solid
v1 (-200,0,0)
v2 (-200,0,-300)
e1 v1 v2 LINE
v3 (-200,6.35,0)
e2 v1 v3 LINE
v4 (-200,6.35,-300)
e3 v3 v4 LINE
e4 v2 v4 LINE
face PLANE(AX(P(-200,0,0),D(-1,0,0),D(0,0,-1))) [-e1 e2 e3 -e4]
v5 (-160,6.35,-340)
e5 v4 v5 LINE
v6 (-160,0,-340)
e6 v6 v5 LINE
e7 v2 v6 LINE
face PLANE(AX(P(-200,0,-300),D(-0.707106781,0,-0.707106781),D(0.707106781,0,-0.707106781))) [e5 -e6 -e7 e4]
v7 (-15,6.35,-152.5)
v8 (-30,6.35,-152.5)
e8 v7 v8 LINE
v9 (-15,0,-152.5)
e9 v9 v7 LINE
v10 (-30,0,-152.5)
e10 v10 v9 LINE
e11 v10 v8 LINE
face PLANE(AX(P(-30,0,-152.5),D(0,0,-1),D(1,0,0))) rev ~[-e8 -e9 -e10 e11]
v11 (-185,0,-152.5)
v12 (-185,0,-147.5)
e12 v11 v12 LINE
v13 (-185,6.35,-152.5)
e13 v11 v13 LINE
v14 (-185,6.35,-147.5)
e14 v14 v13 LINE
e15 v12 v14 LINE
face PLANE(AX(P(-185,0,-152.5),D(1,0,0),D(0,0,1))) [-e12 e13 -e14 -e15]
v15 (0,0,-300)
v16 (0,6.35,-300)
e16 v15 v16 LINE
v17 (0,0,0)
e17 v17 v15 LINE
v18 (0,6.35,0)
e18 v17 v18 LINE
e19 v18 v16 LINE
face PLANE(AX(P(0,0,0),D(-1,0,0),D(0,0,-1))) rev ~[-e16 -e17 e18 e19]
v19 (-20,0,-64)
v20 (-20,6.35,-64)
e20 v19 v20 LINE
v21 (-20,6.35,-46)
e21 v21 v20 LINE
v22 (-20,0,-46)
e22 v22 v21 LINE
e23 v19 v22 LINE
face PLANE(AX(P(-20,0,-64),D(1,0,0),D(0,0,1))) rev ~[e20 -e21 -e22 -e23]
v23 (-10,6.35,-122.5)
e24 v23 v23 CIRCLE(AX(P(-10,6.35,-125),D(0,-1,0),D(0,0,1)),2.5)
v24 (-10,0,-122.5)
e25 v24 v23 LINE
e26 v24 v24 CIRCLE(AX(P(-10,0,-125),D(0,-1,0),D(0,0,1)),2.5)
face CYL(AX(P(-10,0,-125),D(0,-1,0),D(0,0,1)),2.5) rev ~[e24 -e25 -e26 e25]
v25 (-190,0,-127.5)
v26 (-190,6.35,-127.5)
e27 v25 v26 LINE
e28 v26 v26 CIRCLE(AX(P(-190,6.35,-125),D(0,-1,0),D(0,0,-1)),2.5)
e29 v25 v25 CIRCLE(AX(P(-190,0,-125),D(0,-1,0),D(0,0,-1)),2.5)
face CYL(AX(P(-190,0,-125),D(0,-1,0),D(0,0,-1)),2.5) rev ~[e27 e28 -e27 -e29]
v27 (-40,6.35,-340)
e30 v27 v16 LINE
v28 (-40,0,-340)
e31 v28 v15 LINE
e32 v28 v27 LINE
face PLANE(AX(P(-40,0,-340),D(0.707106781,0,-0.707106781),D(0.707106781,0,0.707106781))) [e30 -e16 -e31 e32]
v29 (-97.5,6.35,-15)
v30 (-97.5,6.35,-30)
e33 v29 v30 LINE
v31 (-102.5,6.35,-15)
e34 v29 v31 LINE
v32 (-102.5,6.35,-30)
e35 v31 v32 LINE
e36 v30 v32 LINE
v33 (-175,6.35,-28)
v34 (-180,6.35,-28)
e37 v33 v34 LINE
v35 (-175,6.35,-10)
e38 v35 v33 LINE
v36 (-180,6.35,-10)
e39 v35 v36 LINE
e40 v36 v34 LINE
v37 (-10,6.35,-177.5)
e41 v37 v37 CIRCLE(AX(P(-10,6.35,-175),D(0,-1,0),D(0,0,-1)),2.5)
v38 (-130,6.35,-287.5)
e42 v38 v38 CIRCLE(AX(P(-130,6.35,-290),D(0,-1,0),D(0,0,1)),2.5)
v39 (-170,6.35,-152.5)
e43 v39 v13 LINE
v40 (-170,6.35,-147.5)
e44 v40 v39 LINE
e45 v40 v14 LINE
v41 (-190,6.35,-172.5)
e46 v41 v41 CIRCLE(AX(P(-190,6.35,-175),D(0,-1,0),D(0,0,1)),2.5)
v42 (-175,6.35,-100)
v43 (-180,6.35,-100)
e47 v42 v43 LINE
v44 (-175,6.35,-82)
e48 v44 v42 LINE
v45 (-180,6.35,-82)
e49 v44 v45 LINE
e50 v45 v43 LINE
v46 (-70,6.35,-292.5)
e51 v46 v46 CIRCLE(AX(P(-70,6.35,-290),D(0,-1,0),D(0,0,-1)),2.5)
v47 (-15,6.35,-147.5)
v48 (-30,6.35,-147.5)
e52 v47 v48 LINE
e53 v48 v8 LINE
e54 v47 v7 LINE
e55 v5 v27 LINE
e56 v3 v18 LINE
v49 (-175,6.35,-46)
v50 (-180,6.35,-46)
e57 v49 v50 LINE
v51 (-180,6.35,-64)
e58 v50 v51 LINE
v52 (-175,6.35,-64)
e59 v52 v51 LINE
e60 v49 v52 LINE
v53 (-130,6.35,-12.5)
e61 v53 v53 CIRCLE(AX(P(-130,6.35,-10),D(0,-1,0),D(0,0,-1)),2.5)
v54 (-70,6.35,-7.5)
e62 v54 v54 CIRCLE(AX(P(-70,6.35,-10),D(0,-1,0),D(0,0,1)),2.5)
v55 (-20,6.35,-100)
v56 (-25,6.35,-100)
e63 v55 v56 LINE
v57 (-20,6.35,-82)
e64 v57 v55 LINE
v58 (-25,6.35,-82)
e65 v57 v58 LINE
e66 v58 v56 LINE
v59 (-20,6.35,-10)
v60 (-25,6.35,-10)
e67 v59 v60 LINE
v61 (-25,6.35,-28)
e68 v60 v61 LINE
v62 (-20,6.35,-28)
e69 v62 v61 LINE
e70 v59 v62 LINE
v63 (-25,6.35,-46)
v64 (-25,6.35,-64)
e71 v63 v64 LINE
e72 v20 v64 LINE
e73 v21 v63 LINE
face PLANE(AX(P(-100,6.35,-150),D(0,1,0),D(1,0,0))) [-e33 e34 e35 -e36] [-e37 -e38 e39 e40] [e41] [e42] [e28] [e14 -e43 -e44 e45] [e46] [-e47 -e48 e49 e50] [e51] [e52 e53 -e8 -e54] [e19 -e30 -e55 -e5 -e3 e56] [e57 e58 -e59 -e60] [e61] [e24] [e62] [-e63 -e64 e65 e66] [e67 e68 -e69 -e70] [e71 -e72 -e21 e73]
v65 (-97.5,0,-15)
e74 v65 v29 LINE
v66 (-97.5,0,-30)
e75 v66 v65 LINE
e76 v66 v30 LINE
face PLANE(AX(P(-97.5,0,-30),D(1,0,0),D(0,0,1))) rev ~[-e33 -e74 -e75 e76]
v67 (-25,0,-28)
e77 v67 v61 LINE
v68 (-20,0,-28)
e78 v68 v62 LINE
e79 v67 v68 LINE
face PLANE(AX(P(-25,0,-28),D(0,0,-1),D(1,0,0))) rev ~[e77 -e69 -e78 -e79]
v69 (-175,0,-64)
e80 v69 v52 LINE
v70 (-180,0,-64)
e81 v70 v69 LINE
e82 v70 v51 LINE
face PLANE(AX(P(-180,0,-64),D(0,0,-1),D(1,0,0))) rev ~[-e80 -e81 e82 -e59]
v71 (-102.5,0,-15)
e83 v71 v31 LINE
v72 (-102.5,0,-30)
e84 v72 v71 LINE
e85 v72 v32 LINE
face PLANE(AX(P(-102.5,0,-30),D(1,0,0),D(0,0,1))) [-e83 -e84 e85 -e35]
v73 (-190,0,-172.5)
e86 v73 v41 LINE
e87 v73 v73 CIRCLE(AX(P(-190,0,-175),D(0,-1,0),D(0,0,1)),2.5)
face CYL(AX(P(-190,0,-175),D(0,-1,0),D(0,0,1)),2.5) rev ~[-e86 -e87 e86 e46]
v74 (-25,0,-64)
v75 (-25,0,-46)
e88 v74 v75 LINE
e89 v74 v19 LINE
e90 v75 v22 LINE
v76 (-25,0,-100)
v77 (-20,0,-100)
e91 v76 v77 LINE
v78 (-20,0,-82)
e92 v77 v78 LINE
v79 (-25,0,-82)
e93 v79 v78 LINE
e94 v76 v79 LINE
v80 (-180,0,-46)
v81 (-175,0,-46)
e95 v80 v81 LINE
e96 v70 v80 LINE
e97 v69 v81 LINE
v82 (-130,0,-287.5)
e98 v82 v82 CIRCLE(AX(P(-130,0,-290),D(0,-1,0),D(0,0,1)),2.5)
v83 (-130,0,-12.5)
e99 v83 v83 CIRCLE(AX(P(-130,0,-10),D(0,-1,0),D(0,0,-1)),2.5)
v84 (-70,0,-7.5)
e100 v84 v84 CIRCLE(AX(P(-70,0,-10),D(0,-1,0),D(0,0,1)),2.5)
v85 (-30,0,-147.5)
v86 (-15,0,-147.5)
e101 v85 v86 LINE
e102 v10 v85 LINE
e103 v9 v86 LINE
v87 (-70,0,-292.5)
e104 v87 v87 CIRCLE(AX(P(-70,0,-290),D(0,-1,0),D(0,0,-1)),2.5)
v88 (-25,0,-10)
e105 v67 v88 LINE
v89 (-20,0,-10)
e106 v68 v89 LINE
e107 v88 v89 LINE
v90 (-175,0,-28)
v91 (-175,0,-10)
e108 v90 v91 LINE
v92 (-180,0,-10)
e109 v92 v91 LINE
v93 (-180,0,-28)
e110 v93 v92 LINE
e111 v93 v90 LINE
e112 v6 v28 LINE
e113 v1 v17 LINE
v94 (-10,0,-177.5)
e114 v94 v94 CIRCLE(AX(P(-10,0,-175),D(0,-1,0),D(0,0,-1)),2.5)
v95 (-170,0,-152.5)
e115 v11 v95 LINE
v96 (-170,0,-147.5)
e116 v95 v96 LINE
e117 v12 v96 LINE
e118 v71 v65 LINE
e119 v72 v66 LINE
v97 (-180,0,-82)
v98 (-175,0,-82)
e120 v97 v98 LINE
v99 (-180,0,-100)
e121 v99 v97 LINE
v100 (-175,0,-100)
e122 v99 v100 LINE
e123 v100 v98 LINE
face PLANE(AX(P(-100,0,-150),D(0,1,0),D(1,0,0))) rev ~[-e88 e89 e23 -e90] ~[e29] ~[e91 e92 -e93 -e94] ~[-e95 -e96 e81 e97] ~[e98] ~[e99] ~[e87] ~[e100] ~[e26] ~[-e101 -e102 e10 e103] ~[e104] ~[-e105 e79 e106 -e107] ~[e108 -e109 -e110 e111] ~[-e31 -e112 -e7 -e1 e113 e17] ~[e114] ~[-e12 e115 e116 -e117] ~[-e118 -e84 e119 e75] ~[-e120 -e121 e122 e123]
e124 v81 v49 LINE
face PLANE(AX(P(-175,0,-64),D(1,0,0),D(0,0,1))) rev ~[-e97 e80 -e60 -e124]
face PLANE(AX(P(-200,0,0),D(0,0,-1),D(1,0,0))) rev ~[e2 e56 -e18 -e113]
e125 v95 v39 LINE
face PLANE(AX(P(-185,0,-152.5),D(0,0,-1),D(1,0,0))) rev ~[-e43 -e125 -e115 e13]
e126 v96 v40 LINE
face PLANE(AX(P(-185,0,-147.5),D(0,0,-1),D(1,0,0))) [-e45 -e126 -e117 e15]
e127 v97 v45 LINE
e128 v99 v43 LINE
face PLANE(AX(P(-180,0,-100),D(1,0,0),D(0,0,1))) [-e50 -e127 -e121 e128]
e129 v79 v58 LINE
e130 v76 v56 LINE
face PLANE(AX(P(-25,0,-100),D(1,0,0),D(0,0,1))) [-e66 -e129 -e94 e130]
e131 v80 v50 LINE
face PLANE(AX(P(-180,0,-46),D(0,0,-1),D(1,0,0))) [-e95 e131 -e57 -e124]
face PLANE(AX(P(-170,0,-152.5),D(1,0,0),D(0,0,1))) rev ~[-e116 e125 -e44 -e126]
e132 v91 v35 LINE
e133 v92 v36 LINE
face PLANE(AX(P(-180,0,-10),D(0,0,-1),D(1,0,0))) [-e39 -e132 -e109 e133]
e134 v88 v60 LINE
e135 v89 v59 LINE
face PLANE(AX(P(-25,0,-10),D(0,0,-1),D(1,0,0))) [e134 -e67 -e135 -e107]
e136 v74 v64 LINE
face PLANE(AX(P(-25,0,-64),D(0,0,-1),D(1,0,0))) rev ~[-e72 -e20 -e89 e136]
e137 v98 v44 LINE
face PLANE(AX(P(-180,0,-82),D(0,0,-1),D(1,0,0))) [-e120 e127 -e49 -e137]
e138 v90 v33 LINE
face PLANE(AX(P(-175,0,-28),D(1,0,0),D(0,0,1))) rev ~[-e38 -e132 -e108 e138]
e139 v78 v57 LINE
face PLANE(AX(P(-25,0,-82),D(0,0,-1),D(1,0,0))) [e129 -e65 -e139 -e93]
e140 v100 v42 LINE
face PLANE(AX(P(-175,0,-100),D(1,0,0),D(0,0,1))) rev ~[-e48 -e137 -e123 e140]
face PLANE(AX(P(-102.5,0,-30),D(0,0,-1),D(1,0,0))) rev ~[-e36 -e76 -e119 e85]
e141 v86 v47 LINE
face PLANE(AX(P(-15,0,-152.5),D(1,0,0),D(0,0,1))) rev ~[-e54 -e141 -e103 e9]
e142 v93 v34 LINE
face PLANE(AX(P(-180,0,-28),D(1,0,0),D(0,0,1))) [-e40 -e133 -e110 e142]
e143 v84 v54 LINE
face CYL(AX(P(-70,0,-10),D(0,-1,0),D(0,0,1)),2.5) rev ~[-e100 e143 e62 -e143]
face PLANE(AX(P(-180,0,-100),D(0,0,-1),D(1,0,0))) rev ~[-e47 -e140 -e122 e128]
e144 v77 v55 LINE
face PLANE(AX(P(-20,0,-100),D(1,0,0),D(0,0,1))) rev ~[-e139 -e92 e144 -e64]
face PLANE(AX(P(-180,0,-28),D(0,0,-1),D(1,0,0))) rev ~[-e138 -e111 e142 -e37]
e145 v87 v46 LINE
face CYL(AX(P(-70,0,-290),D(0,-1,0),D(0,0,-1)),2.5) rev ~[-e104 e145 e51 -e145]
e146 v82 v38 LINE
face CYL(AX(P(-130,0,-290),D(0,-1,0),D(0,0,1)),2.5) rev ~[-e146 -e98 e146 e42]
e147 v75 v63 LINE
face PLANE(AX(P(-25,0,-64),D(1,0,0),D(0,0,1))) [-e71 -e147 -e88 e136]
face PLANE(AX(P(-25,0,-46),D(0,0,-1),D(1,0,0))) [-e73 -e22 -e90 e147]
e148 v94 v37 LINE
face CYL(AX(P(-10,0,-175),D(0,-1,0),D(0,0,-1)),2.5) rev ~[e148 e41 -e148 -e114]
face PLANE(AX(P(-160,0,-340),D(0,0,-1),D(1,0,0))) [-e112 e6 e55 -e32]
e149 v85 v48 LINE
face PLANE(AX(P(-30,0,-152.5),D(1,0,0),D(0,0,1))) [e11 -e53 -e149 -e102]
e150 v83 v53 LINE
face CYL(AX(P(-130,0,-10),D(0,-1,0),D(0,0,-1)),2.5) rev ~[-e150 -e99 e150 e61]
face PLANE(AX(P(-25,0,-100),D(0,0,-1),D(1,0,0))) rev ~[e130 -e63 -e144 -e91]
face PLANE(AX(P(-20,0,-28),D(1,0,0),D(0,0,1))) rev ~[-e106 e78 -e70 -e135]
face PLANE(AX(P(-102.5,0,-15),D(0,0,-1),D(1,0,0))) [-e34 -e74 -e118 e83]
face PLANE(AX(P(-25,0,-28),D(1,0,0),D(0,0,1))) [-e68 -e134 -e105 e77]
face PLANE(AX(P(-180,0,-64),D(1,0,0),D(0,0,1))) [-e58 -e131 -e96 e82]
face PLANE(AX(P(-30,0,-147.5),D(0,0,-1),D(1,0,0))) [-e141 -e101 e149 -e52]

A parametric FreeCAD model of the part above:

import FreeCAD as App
import Part
import Sketcher

V = App.Vector
Q = App.Units.Quantity

doc = App.newDocument("Part")
params = doc.addObject("Spreadsheet::Sheet", "Params")
for row, (alias, value) in enumerate([
    ("sketch1_width", "200 mm"),
    ("sketch1_width2", "120 mm"),
    ("sketch1_height", "300 mm"),
    ("pad1_length", "6.35 mm"),
    ("sketch2_diameter", "5 mm"),
    ("sketch2_width", "5 mm"),
    ("sketch2_width2", "15 mm"),
    ("pocket1_length", "10 mm"),
    ("sketch3_width", "5 mm"),
    ("sketch3_height", "18 mm"),
    ("pocket2_length", "10 mm"),
], start=1):
    params.set(f"A{row}", alias)
    params.set(f"B{row}", "=" + value)
    params.setAlias(f"B{row}", alias)

body = doc.addObject("PartDesign::Body", "Body")

sketch1 = doc.addObject("Sketcher::SketchObject", "Sketch")
body.addObject(sketch1)
sketch1.AttachmentSupport = (doc.XZ_Plane, [""])
sketch1.MapMode = "FlatFace"
sketch1.addGeometry([
    Part.LineSegment(V(-200, -300, 0), V(-200, 0, 0)),
    Part.LineSegment(V(-200, 0, 0), V(0, 0, 0)),
    Part.LineSegment(V(0, 0, 0), V(0, -300, 0)),
    Part.LineSegment(V(0, -300, 0), V(-40, -340, 0)),
    Part.LineSegment(V(-40, -340, 0), V(-160, -340, 0)),
    Part.LineSegment(V(-160, -340, 0), V(-200, -300, 0)),
], False)
sketch1.addConstraint([
    Sketcher.Constraint("Coincident", 0, 2, 1, 1),
    Sketcher.Constraint("Coincident", 1, 2, 2, 1),
    Sketcher.Constraint("Coincident", 2, 2, 3, 1),
    Sketcher.Constraint("Coincident", 3, 2, 4, 1),
    Sketcher.Constraint("Coincident", 4, 2, 5, 1),
    Sketcher.Constraint("Coincident", 5, 2, 0, 1),
    Sketcher.Constraint("Vertical", 0),
    Sketcher.Constraint("Horizontal", 1),
    Sketcher.Constraint("Vertical", 2),
    Sketcher.Constraint("Horizontal", 4),
    Sketcher.Constraint("Coincident", 1, 2, -1, 1),
    Sketcher.Constraint("Perpendicular", 3, 5),
    Sketcher.Constraint("Horizontal", 2, 2, 5, 2),
    Sketcher.Constraint("Equal", 3, 5),
    Sketcher.Constraint("DistanceX", 1, 1, 1, 2, Q("200 mm")),
    Sketcher.Constraint("DistanceX", 4, 2, 4, 1, Q("120 mm")),
    Sketcher.Constraint("DistanceY", 0, 1, 0, 2, Q("300 mm")),
])
sketch1.setExpression("Constraints[14]", "Params.sketch1_width")
sketch1.setExpression("Constraints[15]", "Params.sketch1_width2")
sketch1.setExpression("Constraints[16]", "Params.sketch1_height")
pad1 = doc.addObject("PartDesign::Pad", "Pad")
body.addObject(pad1)
pad1.Profile = sketch1
pad1.setExpression("Length", "Params.pad1_length")
pad1.Reversed = True

sketch2 = doc.addObject("Sketcher::SketchObject", "Sketch001")
body.addObject(sketch2)
sketch2.AttachmentSupport = (doc.XZ_Plane, [""])
sketch2.MapMode = "FlatFace"
sketch2.addGeometry([
    Part.Circle(V(-190, -125, 0), V(0, 0, 1), 2.5),
    Part.Circle(V(-130, -10, 0), V(0, 0, 1), 2.5),
    Part.Circle(V(-70, -10, 0), V(0, 0, 1), 2.5),
    Part.Circle(V(-10, -125, 0), V(0, 0, 1), 2.5),
    Part.Circle(V(-70, -290, 0), V(0, 0, 1), 2.5),
    Part.Circle(V(-10, -175, 0), V(0, 0, 1), 2.5),
    Part.Circle(V(-130, -290, 0), V(0, 0, 1), 2.5),
    Part.Circle(V(-190, -175, 0), V(0, 0, 1), 2.5),
    Part.LineSegment(V(-102.5, -15, 0), V(-102.5, -30, 0)),
    Part.LineSegment(V(-102.5, -30, 0), V(-97.5, -30, 0)),
    Part.LineSegment(V(-97.5, -30, 0), V(-97.5, -15, 0)),
    Part.LineSegment(V(-97.5, -15, 0), V(-102.5, -15, 0)),
    Part.LineSegment(V(-185, -147.5, 0), V(-185, -152.5, 0)),
    Part.LineSegment(V(-185, -152.5, 0), V(-170, -152.5, 0)),
    Part.LineSegment(V(-170, -152.5, 0), V(-170, -147.5, 0)),
    Part.LineSegment(V(-170, -147.5, 0), V(-185, -147.5, 0)),
    Part.LineSegment(V(-30, -147.5, 0), V(-30, -152.5, 0)),
    Part.LineSegment(V(-30, -152.5, 0), V(-15, -152.5, 0)),
    Part.LineSegment(V(-15, -152.5, 0), V(-15, -147.5, 0)),
    Part.LineSegment(V(-15, -147.5, 0), V(-30, -147.5, 0)),
], False)
sketch2.addConstraint([
    Sketcher.Constraint("Coincident", 8, 2, 9, 1),
    Sketcher.Constraint("Coincident", 9, 2, 10, 1),
    Sketcher.Constraint("Coincident", 10, 2, 11, 1),
    Sketcher.Constraint("Coincident", 11, 2, 8, 1),
    Sketcher.Constraint("Coincident", 12, 2, 13, 1),
    Sketcher.Constraint("Coincident", 13, 2, 14, 1),
    Sketcher.Constraint("Coincident", 14, 2, 15, 1),
    Sketcher.Constraint("Coincident", 15, 2, 12, 1),
    Sketcher.Constraint("Coincident", 16, 2, 17, 1),
    Sketcher.Constraint("Coincident", 17, 2, 18, 1),
    Sketcher.Constraint("Coincident", 18, 2, 19, 1),
    Sketcher.Constraint("Coincident", 19, 2, 16, 1),
    Sketcher.Constraint("Vertical", 8),
    Sketcher.Constraint("Horizontal", 9),
    Sketcher.Constraint("Vertical", 10),
    Sketcher.Constraint("Horizontal", 11),
    Sketcher.Constraint("Vertical", 12),
    Sketcher.Constraint("Horizontal", 13),
    Sketcher.Constraint("Vertical", 14),
    Sketcher.Constraint("Horizontal", 15),
    Sketcher.Constraint("Vertical", 16),
    Sketcher.Constraint("Horizontal", 17),
    Sketcher.Constraint("Vertical", 18),
    Sketcher.Constraint("Horizontal", 19),
    Sketcher.Constraint("Equal", 0, 1),
    Sketcher.Constraint("Equal", 1, 2),
    Sketcher.Constraint("Equal", 2, 3),
    Sketcher.Constraint("Equal", 3, 4),
    Sketcher.Constraint("Equal", 4, 5),
    Sketcher.Constraint("Equal", 5, 6),
    Sketcher.Constraint("Equal", 6, 7),
    Sketcher.Constraint("Horizontal", 1, 3, 2, 3),
    Sketcher.Constraint("Horizontal", 0, 3, 3, 3),
    Sketcher.Constraint("Horizontal", 4, 3, 6, 3),
    Sketcher.Constraint("Horizontal", 5, 3, 7, 3),
    Sketcher.Constraint("Horizontal", 13, 2, 16, 2),
    Sketcher.Constraint("Horizontal", 15, 2, 18, 2),
    Sketcher.Constraint("Vertical", 2, 3, 4, 3),
    Sketcher.Constraint("Vertical", 3, 3, 5, 3),
    Sketcher.Constraint("Vertical", 1, 3, 6, 3),
    Sketcher.Constraint("Vertical", 0, 3, 7, 3),
    Sketcher.Constraint("Equal", 15, 17),
    Sketcher.Constraint("Equal", 19, 8),
    Sketcher.Constraint("Equal", 11, 12),
    Sketcher.Constraint("Diameter", 0, Q("5 mm")),
    Sketcher.Constraint("DistanceX", 9, 1, 9, 2, Q("5 mm")),
    Sketcher.Constraint("DistanceX", 13, 1, 13, 2, Q("15 mm")),
    Sketcher.Constraint("DistanceX", 0, 3, -1, 1, Q("190 mm")),
    Sketcher.Constraint("DistanceY", 0, 3, -1, 1, Q("125 mm")),
    Sketcher.Constraint("DistanceX", 1, 3, -1, 1, Q("130 mm")),
    Sketcher.Constraint("DistanceY", 1, 3, -1, 1, Q("10 mm")),
    Sketcher.Constraint("DistanceX", 2, 3, -1, 1, Q("70 mm")),
    Sketcher.Constraint("DistanceX", 3, 3, -1, 1, Q("10 mm")),
    Sketcher.Constraint("DistanceY", 4, 3, -1, 1, Q("290 mm")),
    Sketcher.Constraint("DistanceY", 5, 3, -1, 1, Q("175 mm")),
    Sketcher.Constraint("DistanceY", 8, 2, -1, 1, Q("30 mm")),
    Sketcher.Constraint("DistanceX", 12, 2, -1, 1, Q("185 mm")),
    Sketcher.Constraint("DistanceX", 16, 2, -1, 1, Q("30 mm")),
    Sketcher.Constraint("DistanceX", 8, 2, -1, 1, Q("102.5 mm")),
    Sketcher.Constraint("DistanceY", 12, 2, -1, 1, Q("152.5 mm")),
])
sketch2.setExpression("Constraints[44]", "Params.sketch2_diameter")
sketch2.setExpression("Constraints[45]", "Params.sketch2_width")
sketch2.setExpression("Constraints[46]", "Params.sketch2_width2")
pocket1 = doc.addObject("PartDesign::Pocket", "Pocket")
body.addObject(pocket1)
pocket1.Profile = sketch2
pocket1.setExpression("Length", "Params.pocket1_length")

sketch3 = doc.addObject("Sketcher::SketchObject", "Sketch002")
body.addObject(sketch3)
sketch3.AttachmentSupport = (doc.XZ_Plane, [""])
sketch3.MapMode = "FlatFace"
sketch3.addGeometry([
    Part.LineSegment(V(-180, -10, 0), V(-180, -28, 0)),
    Part.LineSegment(V(-180, -28, 0), V(-175, -28, 0)),
    Part.LineSegment(V(-175, -28, 0), V(-175, -10, 0)),
    Part.LineSegment(V(-175, -10, 0), V(-180, -10, 0)),
    Part.LineSegment(V(-180, -46, 0), V(-180, -64, 0)),
    Part.LineSegment(V(-180, -64, 0), V(-175, -64, 0)),
    Part.LineSegment(V(-175, -64, 0), V(-175, -46, 0)),
    Part.LineSegment(V(-175, -46, 0), V(-180, -46, 0)),
    Part.LineSegment(V(-180, -82, 0), V(-180, -100, 0)),
    Part.LineSegment(V(-180, -100, 0), V(-175, -100, 0)),
    Part.LineSegment(V(-175, -100, 0), V(-175, -82, 0)),
    Part.LineSegment(V(-175, -82, 0), V(-180, -82, 0)),
    Part.LineSegment(V(-25, -10, 0), V(-25, -28, 0)),
    Part.LineSegment(V(-25, -28, 0), V(-20, -28, 0)),
    Part.LineSegment(V(-20, -28, 0), V(-20, -10, 0)),
    Part.LineSegment(V(-20, -10, 0), V(-25, -10, 0)),
    Part.LineSegment(V(-25, -46, 0), V(-25, -64, 0)),
    Part.LineSegment(V(-25, -64, 0), V(-20, -64, 0)),
    Part.LineSegment(V(-20, -64, 0), V(-20, -46, 0)),
    Part.LineSegment(V(-20, -46, 0), V(-25, -46, 0)),
    Part.LineSegment(V(-25, -82, 0), V(-25, -100, 0)),
    Part.LineSegment(V(-25, -100, 0), V(-20, -100, 0)),
    Part.LineSegment(V(-20, -100, 0), V(-20, -82, 0)),
    Part.LineSegment(V(-20, -82, 0), V(-25, -82, 0)),
], False)
sketch3.addConstraint([
    Sketcher.Constraint("Coincident", 0, 2, 1, 1),
    Sketcher.Constraint("Coincident", 1, 2, 2, 1),
    Sketcher.Constraint("Coincident", 2, 2, 3, 1),
    Sketcher.Constraint("Coincident", 3, 2, 0, 1),
    Sketcher.Constraint("Coincident", 4, 2, 5, 1),
    Sketcher.Constraint("Coincident", 5, 2, 6, 1),
    Sketcher.Constraint("Coincident", 6, 2, 7, 1),
    Sketcher.Constraint("Coincident", 7, 2, 4, 1),
    Sketcher.Constraint("Coincident", 8, 2, 9, 1),
    Sketcher.Constraint("Coincident", 9, 2, 10, 1),
    Sketcher.Constraint("Coincident", 10, 2, 11, 1),
    Sketcher.Constraint("Coincident", 11, 2, 8, 1),
    Sketcher.Constraint("Coincident", 12, 2, 13, 1),
    Sketcher.Constraint("Coincident", 13, 2, 14, 1),
    Sketcher.Constraint("Coincident", 14, 2, 15, 1),
    Sketcher.Constraint("Coincident", 15, 2, 12, 1),
    Sketcher.Constraint("Coincident", 16, 2, 17, 1),
    Sketcher.Constraint("Coincident", 17, 2, 18, 1),
    Sketcher.Constraint("Coincident", 18, 2, 19, 1),
    Sketcher.Constraint("Coincident", 19, 2, 16, 1),
    Sketcher.Constraint("Coincident", 20, 2, 21, 1),
    Sketcher.Constraint("Coincident", 21, 2, 22, 1),
    Sketcher.Constraint("Coincident", 22, 2, 23, 1),
    Sketcher.Constraint("Coincident", 23, 2, 20, 1),
    Sketcher.Constraint("Vertical", 0),
    Sketcher.Constraint("Horizontal", 1),
    Sketcher.Constraint("Vertical", 2),
    Sketcher.Constraint("Horizontal", 3),
    Sketcher.Constraint("Vertical", 4),
    Sketcher.Constraint("Horizontal", 5),
    Sketcher.Constraint("Vertical", 6),
    Sketcher.Constraint("Horizontal", 7),
    Sketcher.Constraint("Vertical", 8),
    Sketcher.Constraint("Horizontal", 9),
    Sketcher.Constraint("Vertical", 10),
    Sketcher.Constraint("Horizontal", 11),
    Sketcher.Constraint("Vertical", 12),
    Sketcher.Constraint("Horizontal", 13),
    Sketcher.Constraint("Vertical", 14),
    Sketcher.Constraint("Horizontal", 15),
    Sketcher.Constraint("Vertical", 16),
    Sketcher.Constraint("Horizontal", 17),
    Sketcher.Constraint("Vertical", 18),
    Sketcher.Constraint("Horizontal", 19),
    Sketcher.Constraint("Vertical", 20),
    Sketcher.Constraint("Horizontal", 21),
    Sketcher.Constraint("Vertical", 22),
    Sketcher.Constraint("Horizontal", 23),
    Sketcher.Constraint("Horizontal", 1, 2, 12, 2),
    Sketcher.Constraint("Horizontal", 3, 2, 14, 2),
    Sketcher.Constraint("Horizontal", 5, 2, 16, 2),
    Sketcher.Constraint("Horizontal", 7, 2, 18, 2),
    Sketcher.Constraint("Horizontal", 9, 2, 20, 2),
    Sketcher.Constraint("Horizontal", 11, 2, 22, 2),
    Sketcher.Constraint("Vertical", 3, 2, 4, 2),
    Sketcher.Constraint("Vertical", 2, 2, 5, 2),
    Sketcher.Constraint("Vertical", 7, 2, 8, 2),
    Sketcher.Constraint("Vertical", 6, 2, 9, 2),
    Sketcher.Constraint("Vertical", 15, 2, 16, 2),
    Sketcher.Constraint("Vertical", 14, 2, 17, 2),
    Sketcher.Constraint("Vertical", 19, 2, 20, 2),
    Sketcher.Constraint("Vertical", 18, 2, 21, 2),
    Sketcher.Constraint("Equal", 11, 13),
    Sketcher.Constraint("Equal", 2, 4),
    Sketcher.Constraint("Equal", 6, 8),
    Sketcher.Constraint("DistanceX", 1, 1, 1, 2, Q("5 mm")),
    Sketcher.Constraint("DistanceY", 0, 2, 0, 1, Q("18 mm")),
    Sketcher.Constraint("DistanceX", 0, 2, -1, 1, Q("180 mm")),
    Sketcher.Constraint("DistanceY", 0, 2, -1, 1, Q("28 mm")),
    Sketcher.Constraint("DistanceY", 4, 2, -1, 1, Q("64 mm")),
    Sketcher.Constraint("DistanceY", 8, 2, -1, 1, Q("100 mm")),
    Sketcher.Constraint("DistanceX", 12, 2, -1, 1, Q("25 mm")),
])
sketch3.setExpression("Constraints[65]", "Params.sketch3_width")
sketch3.setExpression("Constraints[66]", "Params.sketch3_height")
pocket2 = doc.addObject("PartDesign::Pocket", "Pocket001")
body.addObject(pocket2)
pocket2.Profile = sketch3
pocket2.setExpression("Length", "Params.pocket2_length")

doc.recompute()
